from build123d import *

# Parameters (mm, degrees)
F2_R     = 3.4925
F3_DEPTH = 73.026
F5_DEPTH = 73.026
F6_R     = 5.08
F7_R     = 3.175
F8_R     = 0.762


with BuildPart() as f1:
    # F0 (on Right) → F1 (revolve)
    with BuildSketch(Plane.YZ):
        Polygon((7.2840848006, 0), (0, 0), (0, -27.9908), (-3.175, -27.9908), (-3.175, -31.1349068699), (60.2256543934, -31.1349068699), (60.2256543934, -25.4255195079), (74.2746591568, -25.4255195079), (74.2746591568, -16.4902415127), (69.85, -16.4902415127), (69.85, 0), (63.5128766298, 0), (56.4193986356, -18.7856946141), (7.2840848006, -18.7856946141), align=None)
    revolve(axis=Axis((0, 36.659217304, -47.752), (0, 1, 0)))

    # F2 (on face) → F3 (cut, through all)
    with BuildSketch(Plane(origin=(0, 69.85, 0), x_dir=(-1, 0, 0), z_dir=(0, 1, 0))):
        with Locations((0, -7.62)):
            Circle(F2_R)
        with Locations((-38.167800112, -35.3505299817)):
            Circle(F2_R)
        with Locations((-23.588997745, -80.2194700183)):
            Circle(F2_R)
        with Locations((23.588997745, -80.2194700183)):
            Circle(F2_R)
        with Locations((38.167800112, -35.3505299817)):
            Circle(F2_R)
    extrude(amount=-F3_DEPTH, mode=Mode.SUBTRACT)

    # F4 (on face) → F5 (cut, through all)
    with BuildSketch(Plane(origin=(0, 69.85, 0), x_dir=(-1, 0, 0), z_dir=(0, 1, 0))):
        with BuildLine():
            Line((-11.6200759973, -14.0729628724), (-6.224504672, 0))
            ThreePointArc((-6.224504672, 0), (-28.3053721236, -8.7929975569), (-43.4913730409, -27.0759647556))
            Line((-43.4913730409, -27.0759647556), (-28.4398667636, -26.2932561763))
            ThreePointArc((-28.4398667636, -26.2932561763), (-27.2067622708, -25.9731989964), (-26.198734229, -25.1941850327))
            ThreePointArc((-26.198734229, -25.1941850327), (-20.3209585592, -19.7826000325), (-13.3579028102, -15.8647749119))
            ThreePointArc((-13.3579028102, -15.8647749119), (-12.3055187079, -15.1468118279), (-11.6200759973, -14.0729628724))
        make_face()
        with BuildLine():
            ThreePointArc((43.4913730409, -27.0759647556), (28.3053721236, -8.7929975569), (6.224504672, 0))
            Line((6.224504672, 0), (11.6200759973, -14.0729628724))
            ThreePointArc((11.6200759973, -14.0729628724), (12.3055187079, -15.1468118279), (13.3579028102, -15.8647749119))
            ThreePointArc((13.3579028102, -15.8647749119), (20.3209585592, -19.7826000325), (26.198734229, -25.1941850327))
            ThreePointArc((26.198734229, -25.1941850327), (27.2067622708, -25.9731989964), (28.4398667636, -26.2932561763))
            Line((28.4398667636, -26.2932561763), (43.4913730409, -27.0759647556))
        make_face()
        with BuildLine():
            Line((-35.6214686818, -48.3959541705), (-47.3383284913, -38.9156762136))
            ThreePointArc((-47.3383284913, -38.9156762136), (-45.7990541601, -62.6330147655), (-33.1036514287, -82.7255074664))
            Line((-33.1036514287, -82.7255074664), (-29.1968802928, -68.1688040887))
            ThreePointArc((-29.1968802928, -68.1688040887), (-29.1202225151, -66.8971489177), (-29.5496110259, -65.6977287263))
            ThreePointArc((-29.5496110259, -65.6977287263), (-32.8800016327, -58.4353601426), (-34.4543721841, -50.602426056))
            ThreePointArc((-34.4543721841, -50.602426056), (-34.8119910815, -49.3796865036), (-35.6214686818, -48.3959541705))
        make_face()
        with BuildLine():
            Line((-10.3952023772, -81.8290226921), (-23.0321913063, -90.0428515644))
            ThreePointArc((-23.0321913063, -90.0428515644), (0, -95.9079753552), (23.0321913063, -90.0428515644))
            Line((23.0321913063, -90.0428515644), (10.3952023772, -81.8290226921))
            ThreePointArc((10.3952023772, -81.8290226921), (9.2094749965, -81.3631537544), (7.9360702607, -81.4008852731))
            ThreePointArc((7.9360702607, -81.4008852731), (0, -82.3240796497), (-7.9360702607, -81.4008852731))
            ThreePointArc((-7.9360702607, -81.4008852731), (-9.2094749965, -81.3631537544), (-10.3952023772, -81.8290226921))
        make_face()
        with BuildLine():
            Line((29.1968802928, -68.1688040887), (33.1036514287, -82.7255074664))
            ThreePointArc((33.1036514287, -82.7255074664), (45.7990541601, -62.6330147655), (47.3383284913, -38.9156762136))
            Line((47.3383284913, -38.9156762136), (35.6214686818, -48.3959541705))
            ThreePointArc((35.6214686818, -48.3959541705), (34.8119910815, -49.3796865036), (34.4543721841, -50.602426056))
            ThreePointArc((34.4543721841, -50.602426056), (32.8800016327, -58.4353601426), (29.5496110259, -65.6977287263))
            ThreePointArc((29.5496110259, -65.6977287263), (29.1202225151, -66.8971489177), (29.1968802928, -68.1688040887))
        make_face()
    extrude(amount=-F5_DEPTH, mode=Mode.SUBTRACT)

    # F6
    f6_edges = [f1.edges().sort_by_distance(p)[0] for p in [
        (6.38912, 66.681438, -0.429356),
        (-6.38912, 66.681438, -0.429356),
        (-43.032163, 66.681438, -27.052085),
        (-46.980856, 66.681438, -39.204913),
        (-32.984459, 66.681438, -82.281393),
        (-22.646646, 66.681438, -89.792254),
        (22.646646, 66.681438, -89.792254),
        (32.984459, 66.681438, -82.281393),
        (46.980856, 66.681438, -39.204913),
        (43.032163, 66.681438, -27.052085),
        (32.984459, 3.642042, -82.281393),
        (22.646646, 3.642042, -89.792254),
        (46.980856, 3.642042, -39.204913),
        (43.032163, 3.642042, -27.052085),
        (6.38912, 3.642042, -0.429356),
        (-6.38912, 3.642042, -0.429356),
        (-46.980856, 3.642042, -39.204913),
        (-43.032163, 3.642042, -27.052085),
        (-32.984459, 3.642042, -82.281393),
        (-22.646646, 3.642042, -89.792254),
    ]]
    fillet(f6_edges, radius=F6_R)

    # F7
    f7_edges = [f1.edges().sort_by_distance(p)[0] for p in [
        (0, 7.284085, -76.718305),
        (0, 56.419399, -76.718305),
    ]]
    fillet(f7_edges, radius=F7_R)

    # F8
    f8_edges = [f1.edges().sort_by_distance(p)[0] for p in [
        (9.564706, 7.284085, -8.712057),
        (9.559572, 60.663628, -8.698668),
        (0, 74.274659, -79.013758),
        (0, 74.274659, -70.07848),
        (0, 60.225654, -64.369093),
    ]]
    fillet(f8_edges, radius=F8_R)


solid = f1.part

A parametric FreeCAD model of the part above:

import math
import FreeCAD as App
import Part
import Sketcher

V = App.Vector
Q = App.Units.Quantity


def edges_at(feature, points):
    """Names of the edges that pass closest to the given points."""
    edges = feature.Shape.Edges
    near = lambda p: min(range(len(edges)), key=lambda i: edges[i].distToShape(Part.Vertex(*p))[0])
    return sorted({f"Edge{near(p) + 1}" for p in points})

doc = App.newDocument("Part")
body = doc.addObject("PartDesign::Body", "Body")

# Sketch on YZ plane
sketch1 = body.newObject("Sketcher::SketchObject", "Sketch")
sketch1.AttachmentSupport = (doc.getObject("YZ_Plane"), [""])
sketch1.MapMode = "FlatFace"
sketch1.addGeometry([
    Part.LineSegment(V(7.3, 0, 0), V(0, 0, 0)),  # 0
    Part.LineSegment(V(0, 0, 0), V(0, -28, 0)),  # 1
    Part.LineSegment(V(0, -28, 0), V(-3.2, -28, 0)),  # 2
    Part.LineSegment(V(-3.2, -28, 0), V(-3.2, -31.1, 0)),  # 3
    Part.LineSegment(V(-3.2, -31.1, 0), V(60.2, -31.1, 0)),  # 4
    Part.LineSegment(V(60.2, -31.1, 0), V(60.2, -25.4, 0)),  # 5
    Part.LineSegment(V(60.2, -25.4, 0), V(74.3, -25.4, 0)),  # 6
    Part.LineSegment(V(74.3, -25.4, 0), V(74.3, -16.5, 0)),  # 7
    Part.LineSegment(V(74.3, -16.5, 0), V(69.8, -16.5, 0)),  # 8
    Part.LineSegment(V(69.8, -16.5, 0), V(69.8, 0, 0)),  # 9
    Part.LineSegment(V(69.8, 0, 0), V(63.5, 0, 0)),  # 10
    Part.LineSegment(V(63.5, 0, 0), V(56.4, -18.8, 0)),  # 11
    Part.LineSegment(V(56.4, -18.8, 0), V(7.3, -18.8, 0)),  # 12
    Part.LineSegment(V(7.3, -18.8, 0), V(7.3, 0, 0)),  # 13
], False)
sketch1.addGeometry(Part.LineSegment(V(-3.2, -47.8, 0), V(74.3, -47.8, 0)), True)  # axis
sketch1.addConstraint([
    Sketcher.Constraint("Coincident", 0, 2, 1, 1),
    Sketcher.Constraint("Coincident", 1, 2, 2, 1),
    Sketcher.Constraint("Coincident", 2, 2, 3, 1),
    Sketcher.Constraint("Coincident", 3, 2, 4, 1),
    Sketcher.Constraint("Coincident", 4, 2, 5, 1),
    Sketcher.Constraint("Coincident", 5, 2, 6, 1),
    Sketcher.Constraint("Coincident", 6, 2, 7, 1),
    Sketcher.Constraint("Coincident", 7, 2, 8, 1),
    Sketcher.Constraint("Coincident", 8, 2, 9, 1),
    Sketcher.Constraint("Coincident", 9, 2, 10, 1),
    Sketcher.Constraint("Coincident", 10, 2, 11, 1),
    Sketcher.Constraint("Coincident", 11, 2, 12, 1),
    Sketcher.Constraint("Coincident", 12, 2, 13, 1),
    Sketcher.Constraint("Coincident", 13, 2, 0, 1),
    Sketcher.Constraint("Horizontal", 0),
    Sketcher.Constraint("Vertical", 1),
    Sketcher.Constraint("Horizontal", 2),
    Sketcher.Constraint("Vertical", 3),
    Sketcher.Constraint("Horizontal", 4),
    Sketcher.Constraint("Vertical", 5),
    Sketcher.Constraint("Horizontal", 6),
    Sketcher.Constraint("Vertical", 7),
    Sketcher.Constraint("Horizontal", 8),
    Sketcher.Constraint("Vertical", 9),
    Sketcher.Constraint("Horizontal", 10),
    Sketcher.Constraint("Horizontal", 12),
    Sketcher.Constraint("Vertical", 13),
    Sketcher.Constraint("Horizontal", 14),
    Sketcher.Constraint("Coincident", 0, 2, -1, 1),
    Sketcher.Constraint("PointOnObject", 9, 2, -1),
    Sketcher.Constraint("Vertical", 3, 2, 14, 1),
    Sketcher.Constraint("Vertical", 7, 2, 14, 2),
    Sketcher.Constraint("DistanceX", 2, 2, 2, 1, Q("0.125 in")),
    Sketcher.Constraint("DistanceY", 1, 2, 1, 1, Q("1.102 in")),
    Sketcher.Constraint("DistanceX", -1, 1, 8, 2, Q("2.75 in")),
    Sketcher.Constraint("DistanceY", 14, 1, -1, 1, Q("1.88 in")),
    Sketcher.Constraint("DistanceX", 8, 2, 8, 1, 4.424659),
    Sketcher.Constraint("DistanceY", 9, 1, 9, 2, 16.490242),
    Sketcher.Constraint("DistanceX", -1, 1, 11, 2, 56.419399),
    Sketcher.Constraint("DistanceX", 0, 2, 0, 1, 7.284085),
    Sketcher.Constraint("DistanceX", 4, 1, 4, 2, 63.400654),
    Sketcher.Constraint("DistanceX", 10, 2, 10, 1, 6.337123),
    Sketcher.Constraint("DistanceY", 3, 2, 3, 1, 3.144107),
    Sketcher.Constraint("DistanceY", 5, 1, 5, 2, 5.709387),
    Sketcher.Constraint("DistanceY", 13, 1, 13, 2, 18.785695),
])
revolution = body.newObject("PartDesign::Revolution", "Revolution")
revolution.Profile = sketch1
revolution.ReferenceAxis = (sketch1, ["Axis0"])
revolution.Angle = 360

# Sketch on XZ plane
sketch2 = body.newObject("Sketcher::SketchObject", "Sketch001")
sketch2.AttachmentSupport = (doc.getObject("XZ_Plane"), [""])
sketch2.MapMode = "FlatFace"
sketch2.AttachmentOffset = App.Placement(V(0, 0, -2.75 * 25.4), App.Rotation())
sketch2.addGeometry([
    Part.Circle(V(0, -7.6, 0), V(0, 0, 1), 3.5),  # 0
    Part.Circle(V(38.2, -35.4, 0), V(0, 0, 1), 3.5),  # 1
    Part.Circle(V(23.6, -80.2, 0), V(0, 0, 1), 3.5),  # 2
    Part.Circle(V(-23.6, -80.2, 0), V(0, 0, 1), 3.5),  # 3
    Part.Circle(V(-38.2, -35.4, 0), V(0, 0, 1), 3.5),  # 4
], False)
sketch2.addConstraint([
    Sketcher.Constraint("Equal", 0, 1),
    Sketcher.Constraint("Equal", 1, 2),
    Sketcher.Constraint("Equal", 2, 3),
    Sketcher.Constraint("Equal", 3, 4),
    Sketcher.Constraint("Symmetric", 2, 3, 3, 3, -2),
    Sketcher.Constraint("Symmetric", 1, 3, 4, 3, -2),
    Sketcher.Constraint("PointOnObject", 0, 3, -2),
    Sketcher.Constraint("Diameter", 0, Q("0.275 in")),
    Sketcher.Constraint("DistanceY", 0, 3, -1, 1, Q("0.3 in")),
    Sketcher.Constraint("DistanceX", -1, 1, 1, 3, 38.1678),
    Sketcher.Constraint("DistanceY", 1, 3, -1, 1, 35.35053),
    Sketcher.Constraint("DistanceY", 2, 3, -1, 1, 80.21947),
    Sketcher.Constraint("DistanceX", -1, 1, 2, 3, 23.588998),
])
pocket1 = body.newObject("PartDesign::Pocket", "Pocket")
pocket1.Profile = sketch2
pocket1.Type = "ThroughAll"
pocket1.Reversed = True

# Sketch on XZ plane
sketch3 = body.newObject("Sketcher::SketchObject", "Sketch002")
sketch3.AttachmentSupport = (doc.getObject("XZ_Plane"), [""])
sketch3.MapMode = "FlatFace"
sketch3.AttachmentOffset = App.Placement(V(0, 0, -2.75 * 25.4), App.Rotation())
sketch3.addGeometry([
    Part.LineSegment(V(11.6, -14.1, 0), V(6.2, 0, 0)),  # 0
    Part.ArcOfCircle(Part.Circle(V(0, -47.8, 0), V(0, 0, 1), 48.2), math.radians(25), math.radians(83)),  # 1
    Part.LineSegment(V(43.5, -27.1, 0), V(28.4, -26.3, 0)),  # 2
    Part.ArcOfCircle(Part.Circle(V(28.6, -23.1, 0), V(0, 0, 1), 3.2), math.radians(-139), math.radians(-93)),  # 3
    Part.ArcOfCircle(Part.Circle(V(0, -47.8, 0), V(0, 0, 1), 34.6), math.radians(41), math.radians(67)),  # 4
    Part.ArcOfCircle(Part.Circle(V(14.6, -12.9, 0), V(0, 0, 1), 3.2), math.radians(-159), math.radians(-113)),  # 5
    Part.ArcOfCircle(Part.Circle(V(0, -47.8, 0), V(0, 0, 1), 48.2), math.radians(97), math.radians(155)),  # 6
    Part.LineSegment(V(-6.2, 0, 0), V(-11.6, -14.1, 0)),  # 7
    Part.ArcOfCircle(Part.Circle(V(-14.6, -12.9, 0), V(0, 0, 1), 3.2), math.radians(-67), math.radians(-21)),  # 8
    Part.ArcOfCircle(Part.Circle(V(0, -47.8, 0), V(0, 0, 1), 34.6), math.radians(113), math.radians(139)),  # 9
    Part.ArcOfCircle(Part.Circle(V(-28.6, -23.1, 0), V(0, 0, 1), 3.2), math.radians(-87), math.radians(-41)),  # 10
    Part.LineSegment(V(-28.4, -26.3, 0), V(-43.5, -27.1, 0)),  # 11
    Part.LineSegment(V(35.6, -48.4, 0), V(47.3, -38.9, 0)),  # 12
    Part.ArcOfCircle(Part.Circle(V(0, -47.8, 0), V(0, 0, 1), 48.2), math.radians(-47), math.radians(11)),  # 13
    Part.LineSegment(V(33.1, -82.7, 0), V(29.2, -68.2, 0)),  # 14
    Part.ArcOfCircle(Part.Circle(V(32.3, -67.3, 0), V(0, 0, 1), 3.2), math.radians(149), math.radians(195)),  # 15
    Part.ArcOfCircle(Part.Circle(V(0, -47.8, 0), V(0, 0, 1), 34.6), math.radians(-31), math.radians(-5)),  # 16
    Part.ArcOfCircle(Part.Circle(V(37.6, -50.9, 0), V(0, 0, 1), 3.2), math.radians(129), math.radians(175)),  # 17
    Part.LineSegment(V(10.4, -81.8, 0), V(23, -90, 0)),  # 18
    Part.ArcOfCircle(Part.Circle(V(0, -47.8, 0), V(0, 0, 1), 48.2), math.radians(-119), math.radians(-61)),  # 19
    Part.LineSegment(V(-23, -90, 0), V(-10.4, -81.8, 0)),  # 20
    Part.ArcOfCircle(Part.Circle(V(-8.7, -84.5, 0), V(0, 0, 1), 3.2), math.radians(77), math.radians(123)),  # 21
    Part.ArcOfCircle(Part.Circle(V(0, -47.8, 0), V(0, 0, 1), 34.6), math.radians(-103), math.radians(-77)),  # 22
    Part.ArcOfCircle(Part.Circle(V(8.7, -84.5, 0), V(0, 0, 1), 3.2), math.radians(57), math.radians(103)),  # 23
    Part.LineSegment(V(-29.2, -68.2, 0), V(-33.1, -82.7, 0)),  # 24
    Part.ArcOfCircle(Part.Circle(V(0, -47.8, 0), V(0, 0, 1), 48.2), math.radians(169), math.radians(227)),  # 25
    Part.LineSegment(V(-47.3, -38.9, 0), V(-35.6, -48.4, 0)),  # 26
    Part.ArcOfCircle(Part.Circle(V(-37.6, -50.9, 0), V(0, 0, 1), 3.2), math.radians(5), math.radians(51)),  # 27
    Part.ArcOfCircle(Part.Circle(V(0, -47.8, 0), V(0, 0, 1), 34.6), math.radians(-175), math.radians(-149)),  # 28
    Part.ArcOfCircle(Part.Circle(V(-32.3, -67.3, 0), V(0, 0, 1), 3.2), math.radians(-15), math.radians(31)),  # 29
], False)
sketch3.addConstraint([
    Sketcher.Constraint("Coincident", 0, 2, 1, 2),
    Sketcher.Constraint("Coincident", 1, 1, 2, 1),
    Sketcher.Constraint("Tangent", 2, 2, 3, 2),
    Sketcher.Constraint("Tangent", 3, 1, 4, 1),
    Sketcher.Constraint("Tangent", 4, 2, 5, 2),
    Sketcher.Constraint("Tangent", 5, 1, 0, 1),
    Sketcher.Constraint("Coincident", 6, 1, 7, 1),
    Sketcher.Constraint("Tangent", 7, 2, 8, 2),
    Sketcher.Constraint("Tangent", 8, 1, 9, 1),
    Sketcher.Constraint("Tangent", 9, 2, 10, 2),
    Sketcher.Constraint("Tangent", 10, 1, 11, 1),
    Sketcher.Constraint("Coincident", 11, 2, 6, 2),
    Sketcher.Constraint("Coincident", 12, 2, 13, 2),
    Sketcher.Constraint("Coincident", 13, 1, 14, 1),
    Sketcher.Constraint("Tangent", 14, 2, 15, 2),
    Sketcher.Constraint("Tangent", 15, 1, 16, 1),
    Sketcher.Constraint("Tangent", 16, 2, 17, 2),
    Sketcher.Constraint("Tangent", 17, 1, 12, 1),
    Sketcher.Constraint("Coincident", 18, 2, 19, 2),
    Sketcher.Constraint("Coincident", 19, 1, 20, 1),
    Sketcher.Constraint("Tangent", 20, 2, 21, 2),
    Sketcher.Constraint("Tangent", 21, 1, 22, 1),
    Sketcher.Constraint("Tangent", 22, 2, 23, 2),
    Sketcher.Constraint("Tangent", 23, 1, 18, 1),
    Sketcher.Constraint("Coincident", 24, 2, 25, 2),
    Sketcher.Constraint("Coincident", 25, 1, 26, 1),
    Sketcher.Constraint("Tangent", 26, 2, 27, 2),
    Sketcher.Constraint("Tangent", 27, 1, 28, 1),
    Sketcher.Constraint("Tangent", 28, 2, 29, 2),
    Sketcher.Constraint("Tangent", 29, 1, 24, 1),
    Sketcher.Constraint("Coincident", 4, 3, 1, 3),
    Sketcher.Constraint("Coincident", 6, 3, 1, 3),
    Sketcher.Constraint("Coincident", 9, 3, 1, 3),
    Sketcher.Constraint("Coincident", 13, 3, 1, 3),
    Sketcher.Constraint("Coincident", 16, 3, 1, 3),
    Sketcher.Constraint("Coincident", 19, 3, 1, 3),
    Sketcher.Constraint("Coincident", 22, 3, 1, 3),
    Sketcher.Constraint("Coincident", 25, 3, 1, 3),
    Sketcher.Constraint("Coincident", 28, 3, 1, 3),
    Sketcher.Constraint("Equal", 3, 5),
    Sketcher.Constraint("Equal", 1, 6),
    Sketcher.Constraint("Equal", 5, 8),
    Sketcher.Constraint("Equal", 4, 9),
    Sketcher.Constraint("Equal", 8, 10),
    Sketcher.Constraint("Equal", 6, 13),
    Sketcher.Constraint("Equal", 10, 15),
    Sketcher.Constraint("Equal", 9, 16),
    Sketcher.Constraint("Equal", 15, 17),
    Sketcher.Constraint("Equal", 13, 19),
    Sketcher.Constraint("Equal", 17, 21),
    Sketcher.Constraint("Equal", 16, 22),
    Sketcher.Constraint("Equal", 21, 23),
    Sketcher.Constraint("Equal", 19, 25),
    Sketcher.Constraint("Equal", 23, 27),
    Sketcher.Constraint("Equal", 22, 28),
    Sketcher.Constraint("Equal", 27, 29),
    Sketcher.Constraint("Symmetric", 0, 2, 6, 1, -1, 1),
    Sketcher.Constraint("Symmetric", 5, 3, 8, 3, -2),
    Sketcher.Constraint("Symmetric", 2, 2, 10, 1, -2),
    Sketcher.Constraint("Symmetric", 20, 2, 23, 1, -2),
    Sketcher.Constraint("Symmetric", 17, 1, 26, 2, -2),
    Sketcher.Constraint("Symmetric", 14, 2, 29, 1, -2),
    Sketcher.Constraint("Equal", 0, 2),
    Sketcher.Constraint("Equal", 11, 12),
    Sketcher.Constraint("Equal", 12, 14),
    Sketcher.Constraint("Equal", 14, 18),
    Sketcher.Constraint("Radius", 3, Q("0.125 in")),
    Sketcher.Constraint("DistanceY", 1, 3, -1, 1, Q("1.88 in")),
    Sketcher.Constraint("Radius", 4, 34.57208),
    Sketcher.Constraint("Radius", 1, 48.155975),
    Sketcher.Constraint("DistanceY", 17, 3, -1, 1, 50.864201),
    Sketcher.Constraint("DistanceY", 21, 3, -1, 1, 84.491102),
    Sketcher.Constraint("DistanceX", 15, 3, 17, 3, 5.3552),
    Sketcher.Constraint("DistanceX", 0, 2, 4, 2, 7.133398),
    Sketcher.Constraint("DistanceX", 26, 2, 10, 1, 7.181602),
])
pocket2 = body.newObject("PartDesign::Pocket", "Pocket001")
pocket2.Profile = sketch3
pocket2.Type = "ThroughAll"
pocket2.Reversed = True
doc.recompute()

fillet = body.newObject("PartDesign::Fillet", "Fillet")
fillet.Base = (pocket2, edges_at(pocket2, [
    (6.389, 66.681, -0.429),
    (-6.389, 66.681, -0.429),
    (-43.032, 66.681, -27.052),
    (-46.981, 66.681, -39.205),
    (-32.984, 66.681, -82.281),
    (-22.647, 66.681, -89.792),
    (22.647, 66.681, -89.792),
    (32.984, 66.681, -82.281),
    (46.981, 66.681, -39.205),
    (43.032, 66.681, -27.052),
    (32.984, 3.642, -82.281),
    (22.647, 3.642, -89.792),
    (46.981, 3.642, -39.205),
    (43.032, 3.642, -27.052),
    (6.389, 3.642, -0.429),
    (-6.389, 3.642, -0.429),
    (-46.981, 3.642, -39.205),
    (-43.032, 3.642, -27.052),
    (-32.984, 3.642, -82.281),
    (-22.647, 3.642, -89.792),
]))
fillet.Radius = Q("0.2 in")
doc.recompute()

fillet2 = body.newObject("PartDesign::Fillet", "Fillet001")
fillet2.Base = (fillet, edges_at(fillet, [(0, 7.284, -76.718), (0, 56.419, -76.718)]))
fillet2.Radius = Q("0.125 in")
doc.recompute()

fillet3 = body.newObject("PartDesign::Fillet", "Fillet002")
fillet3.Base = (fillet2, edges_at(fillet2, [
    (9.565, 7.284, -8.712),
    (9.56, 60.664, -8.699),
    (0, 74.275, -79.014),
    (0, 74.275, -70.078),
    (0, 60.226, -64.369),
]))
fillet3.Radius = Q("0.03 in")

doc.recompute()
